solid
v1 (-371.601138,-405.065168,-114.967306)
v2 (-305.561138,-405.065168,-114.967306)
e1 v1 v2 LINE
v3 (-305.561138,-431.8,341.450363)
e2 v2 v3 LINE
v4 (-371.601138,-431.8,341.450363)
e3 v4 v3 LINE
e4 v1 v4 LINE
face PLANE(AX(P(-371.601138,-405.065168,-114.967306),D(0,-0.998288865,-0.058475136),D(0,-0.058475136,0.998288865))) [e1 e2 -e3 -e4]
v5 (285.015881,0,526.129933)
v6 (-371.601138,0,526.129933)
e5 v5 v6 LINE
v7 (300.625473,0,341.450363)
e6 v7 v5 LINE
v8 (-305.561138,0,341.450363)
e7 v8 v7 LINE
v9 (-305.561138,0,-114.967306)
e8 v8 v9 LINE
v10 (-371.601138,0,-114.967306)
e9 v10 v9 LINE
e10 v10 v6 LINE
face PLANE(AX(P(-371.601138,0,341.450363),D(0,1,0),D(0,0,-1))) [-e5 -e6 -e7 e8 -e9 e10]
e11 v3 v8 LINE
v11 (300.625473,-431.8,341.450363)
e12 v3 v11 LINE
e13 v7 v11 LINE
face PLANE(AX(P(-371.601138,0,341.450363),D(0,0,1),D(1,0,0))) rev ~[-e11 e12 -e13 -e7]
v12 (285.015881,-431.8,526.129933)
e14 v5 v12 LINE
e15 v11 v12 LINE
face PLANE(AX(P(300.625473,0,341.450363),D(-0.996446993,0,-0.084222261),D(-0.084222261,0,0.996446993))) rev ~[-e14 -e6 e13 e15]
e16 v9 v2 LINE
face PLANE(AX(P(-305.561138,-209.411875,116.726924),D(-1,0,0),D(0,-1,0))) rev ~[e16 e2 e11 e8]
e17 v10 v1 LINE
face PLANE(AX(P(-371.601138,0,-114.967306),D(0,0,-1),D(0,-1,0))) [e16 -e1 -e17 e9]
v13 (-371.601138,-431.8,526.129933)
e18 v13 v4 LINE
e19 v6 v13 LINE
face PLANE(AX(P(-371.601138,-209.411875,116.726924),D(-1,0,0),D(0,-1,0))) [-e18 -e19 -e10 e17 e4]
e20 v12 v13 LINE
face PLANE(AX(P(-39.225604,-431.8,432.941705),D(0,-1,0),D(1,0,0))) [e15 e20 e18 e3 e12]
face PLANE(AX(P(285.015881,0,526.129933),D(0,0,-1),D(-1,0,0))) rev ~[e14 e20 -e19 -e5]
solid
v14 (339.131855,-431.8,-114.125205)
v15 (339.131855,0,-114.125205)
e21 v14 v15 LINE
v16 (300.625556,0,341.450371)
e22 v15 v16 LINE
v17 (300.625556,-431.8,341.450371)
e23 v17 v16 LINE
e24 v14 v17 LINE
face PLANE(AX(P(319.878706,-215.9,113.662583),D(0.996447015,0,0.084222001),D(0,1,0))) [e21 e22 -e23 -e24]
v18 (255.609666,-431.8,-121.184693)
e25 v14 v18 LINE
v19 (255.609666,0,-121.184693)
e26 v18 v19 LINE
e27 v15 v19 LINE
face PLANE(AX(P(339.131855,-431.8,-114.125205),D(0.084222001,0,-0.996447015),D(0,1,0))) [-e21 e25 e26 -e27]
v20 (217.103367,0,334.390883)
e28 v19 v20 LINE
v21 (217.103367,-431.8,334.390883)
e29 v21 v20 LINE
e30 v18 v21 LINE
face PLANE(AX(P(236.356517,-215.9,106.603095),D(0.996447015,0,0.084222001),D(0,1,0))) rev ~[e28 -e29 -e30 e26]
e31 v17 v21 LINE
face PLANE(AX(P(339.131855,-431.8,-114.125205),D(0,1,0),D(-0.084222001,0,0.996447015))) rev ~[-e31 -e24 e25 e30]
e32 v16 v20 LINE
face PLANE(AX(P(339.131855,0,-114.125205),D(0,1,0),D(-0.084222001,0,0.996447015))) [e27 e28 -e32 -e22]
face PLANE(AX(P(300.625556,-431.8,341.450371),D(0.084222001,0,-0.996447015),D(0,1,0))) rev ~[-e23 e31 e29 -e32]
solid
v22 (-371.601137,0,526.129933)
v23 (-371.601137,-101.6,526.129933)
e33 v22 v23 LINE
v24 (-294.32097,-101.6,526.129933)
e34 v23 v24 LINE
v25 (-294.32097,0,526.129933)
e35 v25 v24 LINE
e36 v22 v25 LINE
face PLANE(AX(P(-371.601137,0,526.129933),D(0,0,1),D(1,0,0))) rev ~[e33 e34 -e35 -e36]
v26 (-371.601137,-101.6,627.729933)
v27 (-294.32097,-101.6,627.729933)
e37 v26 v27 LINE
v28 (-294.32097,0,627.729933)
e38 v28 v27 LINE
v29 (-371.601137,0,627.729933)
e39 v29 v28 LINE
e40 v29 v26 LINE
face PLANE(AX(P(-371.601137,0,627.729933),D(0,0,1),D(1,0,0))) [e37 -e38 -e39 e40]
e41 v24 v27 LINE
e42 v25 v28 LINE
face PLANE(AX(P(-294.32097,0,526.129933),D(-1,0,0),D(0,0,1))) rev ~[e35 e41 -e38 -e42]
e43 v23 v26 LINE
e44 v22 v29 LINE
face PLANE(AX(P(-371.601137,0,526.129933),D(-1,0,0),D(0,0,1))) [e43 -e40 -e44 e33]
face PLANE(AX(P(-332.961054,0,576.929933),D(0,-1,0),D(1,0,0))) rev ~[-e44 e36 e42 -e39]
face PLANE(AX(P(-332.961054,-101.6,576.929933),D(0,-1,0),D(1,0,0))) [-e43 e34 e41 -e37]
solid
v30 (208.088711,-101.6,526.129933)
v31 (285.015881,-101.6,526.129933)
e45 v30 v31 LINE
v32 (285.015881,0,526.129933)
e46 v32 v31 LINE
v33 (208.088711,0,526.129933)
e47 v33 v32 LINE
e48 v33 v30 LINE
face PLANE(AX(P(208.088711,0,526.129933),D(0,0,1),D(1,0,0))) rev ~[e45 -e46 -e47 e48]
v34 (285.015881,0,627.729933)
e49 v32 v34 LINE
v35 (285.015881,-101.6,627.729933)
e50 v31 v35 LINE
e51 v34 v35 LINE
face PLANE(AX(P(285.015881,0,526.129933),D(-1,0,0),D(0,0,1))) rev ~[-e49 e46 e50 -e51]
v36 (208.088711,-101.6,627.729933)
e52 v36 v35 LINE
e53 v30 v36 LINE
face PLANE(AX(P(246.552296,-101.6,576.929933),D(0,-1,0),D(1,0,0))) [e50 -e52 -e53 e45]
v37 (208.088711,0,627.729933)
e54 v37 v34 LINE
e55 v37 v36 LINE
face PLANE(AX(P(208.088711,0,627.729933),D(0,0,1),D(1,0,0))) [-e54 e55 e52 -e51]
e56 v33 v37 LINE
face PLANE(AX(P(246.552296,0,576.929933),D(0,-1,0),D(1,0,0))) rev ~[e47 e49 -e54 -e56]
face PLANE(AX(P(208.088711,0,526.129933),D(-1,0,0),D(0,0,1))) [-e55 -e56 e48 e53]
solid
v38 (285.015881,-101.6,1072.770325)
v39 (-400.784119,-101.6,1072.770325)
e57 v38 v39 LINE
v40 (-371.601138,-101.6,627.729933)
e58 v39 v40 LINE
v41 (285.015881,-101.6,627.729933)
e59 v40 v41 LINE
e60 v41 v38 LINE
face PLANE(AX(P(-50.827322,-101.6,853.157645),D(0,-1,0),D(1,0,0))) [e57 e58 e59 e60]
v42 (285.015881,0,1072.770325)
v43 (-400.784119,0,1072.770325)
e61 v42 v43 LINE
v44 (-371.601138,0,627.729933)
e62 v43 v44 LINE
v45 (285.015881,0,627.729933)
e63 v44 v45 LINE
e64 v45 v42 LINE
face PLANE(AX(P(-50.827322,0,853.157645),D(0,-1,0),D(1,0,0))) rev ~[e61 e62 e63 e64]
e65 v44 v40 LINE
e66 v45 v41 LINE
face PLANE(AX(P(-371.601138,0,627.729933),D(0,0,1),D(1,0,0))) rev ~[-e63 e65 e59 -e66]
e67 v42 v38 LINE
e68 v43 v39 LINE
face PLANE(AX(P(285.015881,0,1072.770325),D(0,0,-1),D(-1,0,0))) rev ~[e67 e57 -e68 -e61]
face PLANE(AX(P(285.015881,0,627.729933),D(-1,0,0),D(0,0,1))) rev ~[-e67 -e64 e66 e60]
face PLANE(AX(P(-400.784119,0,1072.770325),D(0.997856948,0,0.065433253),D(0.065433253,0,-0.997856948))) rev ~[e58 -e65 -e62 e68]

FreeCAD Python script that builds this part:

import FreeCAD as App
import Part
import Sketcher
from FreeCAD import Vector
Q = App.Units.Quantity

doc = App.newDocument("Part")
body = doc.addObject("PartDesign::Body", "Body")

# Sketch on XZ plane
sketch1 = body.newObject("Sketcher::SketchObject", "Sketch")
sketch1.AttachmentSupport = (doc.getObject("XZ_Plane"), [""])
sketch1.MapMode = "FlatFace"
sketch1.addGeometry(Part.LineSegment(Vector(-372, 526, 0), Vector(-372, 341, 0)), False)
sketch1.addGeometry(Part.LineSegment(Vector(-372, 341, 0), Vector(301, 341, 0)), False)
sketch1.addGeometry(Part.LineSegment(Vector(301, 341, 0), Vector(285, 526, 0)), False)
sketch1.addGeometry(Part.LineSegment(Vector(285, 526, 0), Vector(-372, 526, 0)), False)
sketch1.addConstraint(Sketcher.Constraint("Coincident", 0, 2, 1, 1))
sketch1.addConstraint(Sketcher.Constraint("Coincident", 1, 2, 2, 1))
sketch1.addConstraint(Sketcher.Constraint("Coincident", 2, 2, 3, 1))
sketch1.addConstraint(Sketcher.Constraint("Coincident", 3, 2, 0, 1))
sketch1.addConstraint(Sketcher.Constraint("Vertical", 0))
sketch1.addConstraint(Sketcher.Constraint("Horizontal", 1))
sketch1.addConstraint(Sketcher.Constraint("Horizontal", 3))
sketch1.addConstraint(Sketcher.Constraint("DistanceX", 1, 1, 1, 2, Q("672.226611 mm")))
sketch1.addConstraint(Sketcher.Constraint("DistanceX", 3, 2, 3, 1, Q("656.617019 mm")))
sketch1.addConstraint(Sketcher.Constraint("DistanceY", 0, 2, 0, 1, Q("184.67957 mm")))
sketch1.addConstraint(Sketcher.Constraint("DistanceX", 0, 2, -1, 1, Q("371.601138 mm")))
sketch1.addConstraint(Sketcher.Constraint("DistanceY", -1, 1, 0, 2, Q("341.450363 mm")))
pad1 = body.newObject("PartDesign::Pad", "Pad")
pad1.Profile = sketch1
pad1.Length = Q("17 in")

# Sketch on YZ plane
sketch2 = body.newObject("Sketcher::SketchObject", "Sketch001")
sketch2.AttachmentSupport = (doc.getObject("YZ_Plane"), [""])
sketch2.MapMode = "FlatFace"
sketch2.AttachmentOffset = App.Placement(Vector(0, 0, -371.601138), App.Rotation())
sketch2.addGeometry(Part.LineSegment(Vector(-432, 341, 0), Vector(0, 341, 0)), False)
sketch2.addGeometry(Part.LineSegment(Vector(0, 341, 0), Vector(0, -115, 0)), False)
sketch2.addGeometry(Part.LineSegment(Vector(0, -115, 0), Vector(-405, -115, 0)), False)
sketch2.addGeometry(Part.LineSegment(Vector(-405, -115, 0), Vector(-432, 341, 0)), False)
sketch2.addConstraint(Sketcher.Constraint("Coincident", 0, 2, 1, 1))
sketch2.addConstraint(Sketcher.Constraint("Coincident", 1, 2, 2, 1))
sketch2.addConstraint(Sketcher.Constraint("Coincident", 2, 2, 3, 1))
sketch2.addConstraint(Sketcher.Constraint("Coincident", 3, 2, 0, 1))
sketch2.addConstraint(Sketcher.Constraint("Horizontal", 0))
sketch2.addConstraint(Sketcher.Constraint("Vertical", 1))
sketch2.addConstraint(Sketcher.Constraint("Horizontal", 2))
sketch2.addConstraint(Sketcher.Constraint("PointOnObject", 0, 2, -2))
sketch2.addConstraint(Sketcher.Constraint("DistanceX", 0, 1, 0, 2, Q("17 in")))
sketch2.addConstraint(Sketcher.Constraint("Distance", 3, Q("18 in")))
sketch2.addConstraint(Sketcher.Constraint("DistanceX", 2, 2, 2, 1, Q("405.065168 mm")))
sketch2.addConstraint(Sketcher.Constraint("DistanceY", -1, 1, 0, 2, Q("341.450363 mm")))
pad2 = body.newObject("PartDesign::Pad", "Pad001")
pad2.Profile = sketch2
pad2.Length = Q("2.6 in")
body2 = doc.addObject("PartDesign::Body", "Body001")
body2.AllowCompound = True

# Sketch on XZ plane
sketch3 = body2.newObject("Sketcher::SketchObject", "Sketch002")
sketch3.AttachmentSupport = (doc.getObject("XZ_Plane001"), [""])
sketch3.MapMode = "FlatFace"
sketch3.addGeometry(Part.LineSegment(Vector(-372, 628, 0), Vector(-372, 526, 0)), False)
sketch3.addGeometry(Part.LineSegment(Vector(-372, 526, 0), Vector(-294, 526, 0)), False)
sketch3.addGeometry(Part.LineSegment(Vector(-294, 526, 0), Vector(-294, 628, 0)), False)
sketch3.addGeometry(Part.LineSegment(Vector(-294, 628, 0), Vector(-372, 628, 0)), False)
sketch3.addGeometry(Part.LineSegment(Vector(208, 628, 0), Vector(208, 526, 0)), False)
sketch3.addGeometry(Part.LineSegment(Vector(208, 526, 0), Vector(285, 526, 0)), False)
sketch3.addGeometry(Part.LineSegment(Vector(285, 526, 0), Vector(285, 628, 0)), False)
sketch3.addGeometry(Part.LineSegment(Vector(285, 628, 0), Vector(208, 628, 0)), False)
sketch3.addConstraint(Sketcher.Constraint("Coincident", 0, 2, 1, 1))
sketch3.addConstraint(Sketcher.Constraint("Coincident", 1, 2, 2, 1))
sketch3.addConstraint(Sketcher.Constraint("Coincident", 2, 2, 3, 1))
sketch3.addConstraint(Sketcher.Constraint("Coincident", 3, 2, 0, 1))
sketch3.addConstraint(Sketcher.Constraint("Coincident", 4, 2, 5, 1))
sketch3.addConstraint(Sketcher.Constraint("Coincident", 5, 2, 6, 1))
sketch3.addConstraint(Sketcher.Constraint("Coincident", 6, 2, 7, 1))
sketch3.addConstraint(Sketcher.Constraint("Coincident", 7, 2, 4, 1))
sketch3.addConstraint(Sketcher.Constraint("Vertical", 0))
sketch3.addConstraint(Sketcher.Constraint("Horizontal", 1))
sketch3.addConstraint(Sketcher.Constraint("Vertical", 2))
sketch3.addConstraint(Sketcher.Constraint("Horizontal", 3))
sketch3.addConstraint(Sketcher.Constraint("Vertical", 4))
sketch3.addConstraint(Sketcher.Constraint("Horizontal", 5))
sketch3.addConstraint(Sketcher.Constraint("Vertical", 6))
sketch3.addConstraint(Sketcher.Constraint("Horizontal", 7))
sketch3.addConstraint(Sketcher.Constraint("Horizontal", 1, 2, 4, 2))
sketch3.addConstraint(Sketcher.Constraint("Horizontal", 3, 2, 6, 2))
sketch3.addConstraint(Sketcher.Constraint("DistanceY", 0, 2, 0, 1, Q("4 in")))
sketch3.addConstraint(Sketcher.Constraint("DistanceX", 5, 1, 5, 2, Q("76.92717 mm")))
sketch3.addConstraint(Sketcher.Constraint("DistanceX", 1, 1, 1, 2, Q("77.280167 mm")))
sketch3.addConstraint(Sketcher.Constraint("DistanceX", 1, 2, -1, 1, Q("294.32097 mm")))
sketch3.addConstraint(Sketcher.Constraint("DistanceX", -1, 1, 4, 2, Q("208.088711 mm")))
sketch3.addConstraint(Sketcher.Constraint("DistanceY", -1, 1, 0, 2, Q("526.129933 mm")))
pad3 = body2.newObject("PartDesign::Pad", "Pad002")
pad3.Profile = sketch3
pad3.Length = Q("4 in")
body3 = doc.addObject("PartDesign::Body", "Body002")

# Sketch on XZ plane
sketch4 = body3.newObject("Sketcher::SketchObject", "Sketch003")
sketch4.AttachmentSupport = (doc.getObject("XZ_Plane002"), [""])
sketch4.MapMode = "FlatFace"
sketch4.addGeometry(Part.LineSegment(Vector(-401, 1073, 0), Vector(-372, 628, 0)), False)
sketch4.addGeometry(Part.LineSegment(Vector(-372, 628, 0), Vector(285, 628, 0)), False)
sketch4.addGeometry(Part.LineSegment(Vector(285, 628, 0), Vector(285, 1073, 0)), False)
sketch4.addGeometry(Part.LineSegment(Vector(285, 1073, 0), Vector(-401, 1073, 0)), False)
sketch4.addConstraint(Sketcher.Constraint("Coincident", 0, 2, 1, 1))
sketch4.addConstraint(Sketcher.Constraint("Coincident", 1, 2, 2, 1))
sketch4.addConstraint(Sketcher.Constraint("Coincident", 2, 2, 3, 1))
sketch4.addConstraint(Sketcher.Constraint("Coincident", 3, 2, 0, 1))
sketch4.addConstraint(Sketcher.Constraint("Horizontal", 1))
sketch4.addConstraint(Sketcher.Constraint("Vertical", 2))
sketch4.addConstraint(Sketcher.Constraint("Horizontal", 3))
sketch4.addConstraint(Sketcher.Constraint("DistanceX", 3, 2, 3, 1, Q("27 in")))
sketch4.addConstraint(Sketcher.Constraint("DistanceX", 1, 1, 1, 2, Q("656.617019 mm")))
sketch4.addConstraint(Sketcher.Constraint("DistanceY", 2, 1, 2, 2, Q("445.040392 mm")))
sketch4.addConstraint(Sketcher.Constraint("DistanceX", 0, 2, -1, 1, Q("371.601138 mm")))
sketch4.addConstraint(Sketcher.Constraint("DistanceY", -1, 1, 0, 2, Q("627.729933 mm")))
pad4 = body3.newObject("PartDesign::Pad", "Pad003")
pad4.Profile = sketch4
pad4.Length = Q("4 in")
body4 = doc.addObject("PartDesign::Body", "Body003")

# Sketch on an angled plane
sketch5 = body4.newObject("Sketcher::SketchObject", "Sketch004")
sketch5.Placement = App.Placement(Vector(327.148566, 0, 27.651439), App.Rotation(Vector(0, 1, 0), Vector(-0.084222001, 0, 0.996447015), Vector(0.996447015, 0, 0.084222001), "ZXY"))
sketch5.addGeometry(Part.LineSegment(Vector(-432, 315, 0), Vector(-432, -142, 0)), False)
sketch5.addGeometry(Part.LineSegment(Vector(-432, -142, 0), Vector(0, -142, 0)), False)
sketch5.addGeometry(Part.LineSegment(Vector(0, -142, 0), Vector(0, 315, 0)), False)
sketch5.addGeometry(Part.LineSegment(Vector(0, 315, 0), Vector(-432, 315, 0)), False)
sketch5.addConstraint(Sketcher.Constraint("Coincident", 0, 2, 1, 1))
sketch5.addConstraint(Sketcher.Constraint("Coincident", 1, 2, 2, 1))
sketch5.addConstraint(Sketcher.Constraint("Coincident", 2, 2, 3, 1))
sketch5.addConstraint(Sketcher.Constraint("Coincident", 3, 2, 0, 1))
sketch5.addConstraint(Sketcher.Constraint("Vertical", 0))
sketch5.addConstraint(Sketcher.Constraint("Horizontal", 1))
sketch5.addConstraint(Sketcher.Constraint("Vertical", 2))
sketch5.addConstraint(Sketcher.Constraint("Horizontal", 3))
sketch5.addConstraint(Sketcher.Constraint("PointOnObject", 1, 2, -2))
sketch5.addConstraint(Sketcher.Constraint("DistanceX", 1, 1, 1, 2, Q("17 in")))
sketch5.addConstraint(Sketcher.Constraint("DistanceY", 0, 2, 0, 1, Q("18 in")))
sketch5.addConstraint(Sketcher.Constraint("DistanceY", 0, 2, -1, 1, Q("142.28217 mm")))
pad5 = body4.newObject("PartDesign::Pad", "Pad004")
pad5.Profile = sketch5
pad5.Length = Q("3.3 in")
pad5.Reversed = True

doc.recompute()
